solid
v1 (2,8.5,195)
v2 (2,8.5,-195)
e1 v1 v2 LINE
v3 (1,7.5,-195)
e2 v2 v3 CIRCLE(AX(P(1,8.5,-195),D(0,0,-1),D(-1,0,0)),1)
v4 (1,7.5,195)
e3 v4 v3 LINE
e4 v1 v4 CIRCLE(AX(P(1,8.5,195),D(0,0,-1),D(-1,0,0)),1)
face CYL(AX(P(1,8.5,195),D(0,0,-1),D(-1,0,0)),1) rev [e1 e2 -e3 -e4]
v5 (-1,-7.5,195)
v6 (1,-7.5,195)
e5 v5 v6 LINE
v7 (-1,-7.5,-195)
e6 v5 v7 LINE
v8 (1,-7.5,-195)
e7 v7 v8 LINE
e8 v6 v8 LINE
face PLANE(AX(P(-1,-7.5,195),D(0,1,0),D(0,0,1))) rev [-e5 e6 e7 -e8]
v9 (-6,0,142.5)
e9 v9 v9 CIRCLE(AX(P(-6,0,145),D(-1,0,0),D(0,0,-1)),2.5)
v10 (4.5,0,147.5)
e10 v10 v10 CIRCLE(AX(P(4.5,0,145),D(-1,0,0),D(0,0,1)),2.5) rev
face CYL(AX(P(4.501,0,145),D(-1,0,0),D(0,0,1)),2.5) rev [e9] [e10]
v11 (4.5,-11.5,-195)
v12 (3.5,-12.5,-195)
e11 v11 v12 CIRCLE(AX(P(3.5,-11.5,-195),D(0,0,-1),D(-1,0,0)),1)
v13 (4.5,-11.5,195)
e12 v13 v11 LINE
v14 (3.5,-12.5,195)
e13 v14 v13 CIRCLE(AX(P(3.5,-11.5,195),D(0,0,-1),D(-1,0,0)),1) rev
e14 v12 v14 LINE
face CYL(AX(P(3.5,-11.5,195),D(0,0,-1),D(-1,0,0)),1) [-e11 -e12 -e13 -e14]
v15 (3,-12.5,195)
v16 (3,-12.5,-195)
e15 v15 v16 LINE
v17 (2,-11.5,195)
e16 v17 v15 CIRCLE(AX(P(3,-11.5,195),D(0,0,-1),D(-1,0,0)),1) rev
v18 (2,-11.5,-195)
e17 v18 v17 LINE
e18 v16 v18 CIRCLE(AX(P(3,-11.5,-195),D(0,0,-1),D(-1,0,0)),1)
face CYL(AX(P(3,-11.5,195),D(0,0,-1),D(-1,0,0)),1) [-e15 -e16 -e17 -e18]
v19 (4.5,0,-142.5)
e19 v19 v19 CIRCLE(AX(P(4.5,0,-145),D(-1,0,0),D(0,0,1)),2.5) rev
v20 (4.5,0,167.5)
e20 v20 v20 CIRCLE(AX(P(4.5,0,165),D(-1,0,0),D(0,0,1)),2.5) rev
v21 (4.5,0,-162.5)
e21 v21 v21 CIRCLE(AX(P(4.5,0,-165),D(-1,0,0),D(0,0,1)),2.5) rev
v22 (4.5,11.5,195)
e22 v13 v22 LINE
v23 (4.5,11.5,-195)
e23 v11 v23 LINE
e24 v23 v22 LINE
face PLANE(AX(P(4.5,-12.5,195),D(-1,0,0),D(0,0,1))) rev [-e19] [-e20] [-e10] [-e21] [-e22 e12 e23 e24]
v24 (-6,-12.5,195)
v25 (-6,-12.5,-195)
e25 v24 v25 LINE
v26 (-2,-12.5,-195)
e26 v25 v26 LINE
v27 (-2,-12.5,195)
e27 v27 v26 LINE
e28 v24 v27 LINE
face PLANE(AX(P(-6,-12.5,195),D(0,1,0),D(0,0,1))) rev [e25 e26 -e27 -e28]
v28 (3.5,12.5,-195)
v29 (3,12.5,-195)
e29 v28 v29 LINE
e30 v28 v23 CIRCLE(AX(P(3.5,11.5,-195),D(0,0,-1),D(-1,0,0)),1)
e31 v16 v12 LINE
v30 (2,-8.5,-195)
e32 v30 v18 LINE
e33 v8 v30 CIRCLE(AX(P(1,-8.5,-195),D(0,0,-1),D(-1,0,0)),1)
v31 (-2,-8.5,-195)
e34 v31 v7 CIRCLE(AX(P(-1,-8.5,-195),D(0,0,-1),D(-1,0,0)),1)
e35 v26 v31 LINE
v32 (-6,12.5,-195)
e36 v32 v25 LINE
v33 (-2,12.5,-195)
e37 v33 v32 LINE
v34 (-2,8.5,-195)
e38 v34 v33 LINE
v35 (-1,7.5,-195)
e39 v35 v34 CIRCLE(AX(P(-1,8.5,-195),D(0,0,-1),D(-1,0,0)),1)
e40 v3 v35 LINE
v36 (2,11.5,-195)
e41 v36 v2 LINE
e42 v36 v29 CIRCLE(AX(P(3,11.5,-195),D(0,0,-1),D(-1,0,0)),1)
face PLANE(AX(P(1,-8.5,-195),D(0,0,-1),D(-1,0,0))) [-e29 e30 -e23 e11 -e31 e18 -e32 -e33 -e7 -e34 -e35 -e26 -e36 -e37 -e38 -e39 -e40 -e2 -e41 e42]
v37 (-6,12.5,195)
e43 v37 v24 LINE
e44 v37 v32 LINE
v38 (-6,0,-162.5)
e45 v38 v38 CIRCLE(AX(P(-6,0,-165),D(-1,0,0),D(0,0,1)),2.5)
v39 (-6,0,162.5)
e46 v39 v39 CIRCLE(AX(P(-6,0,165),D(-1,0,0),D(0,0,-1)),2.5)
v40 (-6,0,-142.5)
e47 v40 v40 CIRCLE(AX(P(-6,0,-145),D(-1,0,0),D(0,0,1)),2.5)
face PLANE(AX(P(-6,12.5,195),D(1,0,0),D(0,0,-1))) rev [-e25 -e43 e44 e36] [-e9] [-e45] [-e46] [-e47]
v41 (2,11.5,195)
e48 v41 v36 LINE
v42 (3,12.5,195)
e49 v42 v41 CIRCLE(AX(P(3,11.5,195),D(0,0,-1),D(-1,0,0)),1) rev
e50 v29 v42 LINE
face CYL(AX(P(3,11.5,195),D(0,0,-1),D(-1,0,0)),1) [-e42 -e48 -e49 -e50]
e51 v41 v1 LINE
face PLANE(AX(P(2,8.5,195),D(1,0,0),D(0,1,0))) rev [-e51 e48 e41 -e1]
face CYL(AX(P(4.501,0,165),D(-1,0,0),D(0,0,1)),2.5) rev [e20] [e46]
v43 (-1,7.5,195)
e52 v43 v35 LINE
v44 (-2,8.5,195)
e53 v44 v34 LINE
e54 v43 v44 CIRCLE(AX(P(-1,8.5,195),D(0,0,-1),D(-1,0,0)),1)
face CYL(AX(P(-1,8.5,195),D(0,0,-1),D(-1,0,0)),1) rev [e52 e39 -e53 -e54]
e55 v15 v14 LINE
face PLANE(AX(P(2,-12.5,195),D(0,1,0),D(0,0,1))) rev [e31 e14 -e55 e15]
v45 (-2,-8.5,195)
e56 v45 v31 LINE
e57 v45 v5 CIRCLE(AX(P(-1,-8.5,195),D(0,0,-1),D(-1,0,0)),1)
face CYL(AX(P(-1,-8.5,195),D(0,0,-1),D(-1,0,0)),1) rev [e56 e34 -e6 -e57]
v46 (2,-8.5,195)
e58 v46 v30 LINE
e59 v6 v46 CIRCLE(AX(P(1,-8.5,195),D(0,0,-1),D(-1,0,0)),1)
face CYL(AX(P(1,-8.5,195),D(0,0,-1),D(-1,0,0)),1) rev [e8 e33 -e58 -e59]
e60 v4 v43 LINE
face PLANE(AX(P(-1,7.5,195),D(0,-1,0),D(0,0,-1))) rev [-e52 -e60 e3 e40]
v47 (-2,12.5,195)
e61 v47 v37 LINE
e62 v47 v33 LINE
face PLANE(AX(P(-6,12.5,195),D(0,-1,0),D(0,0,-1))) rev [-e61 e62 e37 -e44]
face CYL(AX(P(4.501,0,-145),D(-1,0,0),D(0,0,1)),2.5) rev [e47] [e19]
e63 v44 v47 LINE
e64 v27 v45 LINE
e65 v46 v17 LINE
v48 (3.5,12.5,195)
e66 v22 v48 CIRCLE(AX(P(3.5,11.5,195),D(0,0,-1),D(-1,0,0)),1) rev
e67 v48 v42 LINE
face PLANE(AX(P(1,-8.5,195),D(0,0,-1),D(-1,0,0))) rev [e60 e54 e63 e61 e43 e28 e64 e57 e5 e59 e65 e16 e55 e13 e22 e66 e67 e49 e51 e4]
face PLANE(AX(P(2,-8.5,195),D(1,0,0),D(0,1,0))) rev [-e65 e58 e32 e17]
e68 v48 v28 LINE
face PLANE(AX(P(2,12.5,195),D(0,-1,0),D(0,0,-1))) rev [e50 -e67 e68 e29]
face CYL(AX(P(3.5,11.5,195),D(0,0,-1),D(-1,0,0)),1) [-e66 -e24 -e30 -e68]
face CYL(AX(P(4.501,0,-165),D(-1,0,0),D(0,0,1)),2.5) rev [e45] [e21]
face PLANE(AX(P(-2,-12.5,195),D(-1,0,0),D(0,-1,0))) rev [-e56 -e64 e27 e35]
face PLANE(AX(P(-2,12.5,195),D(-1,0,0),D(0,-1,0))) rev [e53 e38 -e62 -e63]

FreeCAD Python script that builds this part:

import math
import FreeCAD as App
import Part
import Sketcher

V = App.Vector
Q = App.Units.Quantity


def edges_at(feature, points):
    """Names of the edges that pass closest to the given points."""
    edges = feature.Shape.Edges
    near = lambda p: min(range(len(edges)), key=lambda i: edges[i].distToShape(Part.Vertex(*p))[0])
    return sorted({f"Edge{near(p) + 1}" for p in points})

doc = App.newDocument("Part")
body = doc.addObject("PartDesign::Body", "Body")

sketch1 = body.newObject("Sketcher::SketchObject", "Sketch")
sketch1.AttachmentSupport = (doc.getObject("XY_Plane"), [""])
sketch1.MapMode = "FlatFace"
sketch1.addGeometry(Part.LineSegment(V(-6, 12.5, 0), V(-6, -12.5, 0)), False)
sketch1.addGeometry(Part.LineSegment(V(-6, -12.5, 0), V(-2, -12.5, 0)), False)
sketch1.addGeometry(Part.LineSegment(V(-2, -12.5, 0), V(-2, -8.5, 0)), False)
sketch1.addGeometry(Part.ArcOfCircle(Part.Circle(V(-1, -8.5, 0), V(0, 0, 1), 1), math.radians(90), math.radians(180)), False)
sketch1.addGeometry(Part.LineSegment(V(-1, -7.5, 0), V(1, -7.5, 0)), False)
sketch1.addGeometry(Part.ArcOfCircle(Part.Circle(V(1, -8.5, 0), V(0, 0, 1), 1), math.radians(0), math.radians(90)), False)
sketch1.addGeometry(Part.LineSegment(V(2, -8.5, 0), V(2, -12.5, 0)), False)
sketch1.addGeometry(Part.LineSegment(V(2, -12.5, 0), V(4.5, -12.5, 0)), False)
sketch1.addGeometry(Part.LineSegment(V(4.5, -12.5, 0), V(4.5, 12.5, 0)), False)
sketch1.addGeometry(Part.LineSegment(V(4.5, 12.5, 0), V(2, 12.5, 0)), False)
sketch1.addGeometry(Part.LineSegment(V(2, 12.5, 0), V(2, 8.5, 0)), False)
sketch1.addGeometry(Part.ArcOfCircle(Part.Circle(V(1, 8.5, 0), V(0, 0, 1), 1), math.radians(-90), math.radians(0)), False)
sketch1.addGeometry(Part.LineSegment(V(1, 7.5, 0), V(-1, 7.5, 0)), False)
sketch1.addGeometry(Part.ArcOfCircle(Part.Circle(V(-1, 8.5, 0), V(0, 0, 1), 1), math.radians(-180), math.radians(-90)), False)
sketch1.addGeometry(Part.LineSegment(V(-2, 8.5, 0), V(-2, 12.5, 0)), False)
sketch1.addGeometry(Part.LineSegment(V(-2, 12.5, 0), V(-6, 12.5, 0)), False)
sketch1.addConstraint(Sketcher.Constraint("Coincident", 0, 2, 1, 1))
sketch1.addConstraint(Sketcher.Constraint("Coincident", 1, 2, 2, 1))
sketch1.addConstraint(Sketcher.Constraint("Tangent", 2, 2, 3, 2))
sketch1.addConstraint(Sketcher.Constraint("Tangent", 3, 1, 4, 1))
sketch1.addConstraint(Sketcher.Constraint("Tangent", 4, 2, 5, 2))
sketch1.addConstraint(Sketcher.Constraint("Tangent", 5, 1, 6, 1))
sketch1.addConstraint(Sketcher.Constraint("Coincident", 6, 2, 7, 1))
sketch1.addConstraint(Sketcher.Constraint("Coincident", 7, 2, 8, 1))
sketch1.addConstraint(Sketcher.Constraint("Coincident", 8, 2, 9, 1))
sketch1.addConstraint(Sketcher.Constraint("Coincident", 9, 2, 10, 1))
sketch1.addConstraint(Sketcher.Constraint("Tangent", 10, 2, 11, 2))
sketch1.addConstraint(Sketcher.Constraint("Tangent", 11, 1, 12, 1))
sketch1.addConstraint(Sketcher.Constraint("Tangent", 12, 2, 13, 2))
sketch1.addConstraint(Sketcher.Constraint("Tangent", 13, 1, 14, 1))
sketch1.addConstraint(Sketcher.Constraint("Coincident", 14, 2, 15, 1))
sketch1.addConstraint(Sketcher.Constraint("Coincident", 15, 2, 0, 1))
sketch1.addConstraint(Sketcher.Constraint("Vertical", 0))
sketch1.addConstraint(Sketcher.Constraint("Horizontal", 1))
sketch1.addConstraint(Sketcher.Constraint("Vertical", 2))
sketch1.addConstraint(Sketcher.Constraint("Horizontal", 4))
sketch1.addConstraint(Sketcher.Constraint("Vertical", 6))
sketch1.addConstraint(Sketcher.Constraint("Horizontal", 7))
sketch1.addConstraint(Sketcher.Constraint("Vertical", 8))
sketch1.addConstraint(Sketcher.Constraint("Horizontal", 9))
sketch1.addConstraint(Sketcher.Constraint("Vertical", 10))
sketch1.addConstraint(Sketcher.Constraint("Horizontal", 12))
sketch1.addConstraint(Sketcher.Constraint("Vertical", 14))
sketch1.addConstraint(Sketcher.Constraint("Horizontal", 15))
sketch1.addConstraint(Sketcher.Constraint("Equal", 3, 5))
sketch1.addConstraint(Sketcher.Constraint("Equal", 5, 11))
sketch1.addConstraint(Sketcher.Constraint("Equal", 11, 13))
sketch1.addConstraint(Sketcher.Constraint("Symmetric", 3, 3, 11, 3, -1, 1))
sketch1.addConstraint(Sketcher.Constraint("Symmetric", 6, 2, 14, 2, -1, 1))
sketch1.addConstraint(Sketcher.Constraint("Symmetric", 1, 2, 6, 2, -2))
sketch1.addConstraint(Sketcher.Constraint("Horizontal", 9, 2, 14, 2))
sketch1.addConstraint(Sketcher.Constraint("Equal", 15, 2))
sketch1.addConstraint(Sketcher.Constraint("Radius", 3, Q("1 mm")))
sketch1.addConstraint(Sketcher.Constraint("DistanceX", 1, 1, 1, 2, Q("4 mm")))
sketch1.addConstraint(Sketcher.Constraint("DistanceX", 4, 1, 4, 2, Q("2 mm")))
sketch1.addConstraint(Sketcher.Constraint("DistanceY", 0, 2, 0, 1, Q("25 mm")))
sketch1.addConstraint(Sketcher.Constraint("DistanceX", 7, 1, 7, 2, Q("2.5 mm")))
pad1 = body.newObject("PartDesign::Pad", "Pad")
pad1.Profile = sketch1
pad1.Length = 390
pad1.Midplane = True

sketch2 = body.newObject("Sketcher::SketchObject", "Sketch001")
sketch2.AttachmentSupport = (doc.getObject("YZ_Plane"), [""])
sketch2.MapMode = "FlatFace"
sketch2.AttachmentOffset = App.Placement(V(0, 0, -6), App.Rotation())
sketch2.addGeometry(Part.Circle(V(0, -165, 0), V(0, 0, 1), 2.5), False)
sketch2.addConstraint(Sketcher.Constraint("PointOnObject", 0, 3, -2))
sketch2.addConstraint(Sketcher.Constraint("Diameter", 0, Q("5 mm")))
sketch2.addConstraint(Sketcher.Constraint("DistanceY", 0, 3, -1, 1, Q("165 mm")))
pocket1 = body.newObject("PartDesign::Pocket", "Pocket")
pocket1.Profile = sketch2
pocket1.Type = "UpToFirst"
pocket1.Reversed = True

sketch3 = body.newObject("Sketcher::SketchObject", "Sketch002")
sketch3.AttachmentSupport = (doc.getObject("YZ_Plane"), [""])
sketch3.MapMode = "FlatFace"
sketch3.AttachmentOffset = App.Placement(V(0, 0, -6), App.Rotation())
sketch3.addGeometry(Part.Circle(V(0, -145, 0), V(0, 0, 1), 2.5), False)
sketch3.addConstraint(Sketcher.Constraint("PointOnObject", 0, 3, -2))
sketch3.addConstraint(Sketcher.Constraint("Diameter", 0, Q("5 mm")))
sketch3.addConstraint(Sketcher.Constraint("DistanceY", 0, 3, -1, 1, Q("145 mm")))
pocket2 = body.newObject("PartDesign::Pocket", "Pocket001")
pocket2.Profile = sketch3
pocket2.Type = "UpToFirst"
pocket2.Reversed = True

sketch4 = body.newObject("Sketcher::SketchObject", "Sketch003")
sketch4.AttachmentSupport = (doc.getObject("YZ_Plane"), [""])
sketch4.MapMode = "FlatFace"
sketch4.AttachmentOffset = App.Placement(V(0, 0, -6), App.Rotation())
sketch4.addGeometry(Part.Circle(V(0, 165, 0), V(0, 0, 1), 2.5), False)
sketch4.addConstraint(Sketcher.Constraint("PointOnObject", 0, 3, -2))
sketch4.addConstraint(Sketcher.Constraint("Diameter", 0, Q("5 mm")))
sketch4.addConstraint(Sketcher.Constraint("DistanceY", -1, 1, 0, 3, Q("165 mm")))
pocket3 = body.newObject("PartDesign::Pocket", "Pocket002")
pocket3.Profile = sketch4
pocket3.Type = "UpToFirst"
pocket3.Reversed = True

sketch5 = body.newObject("Sketcher::SketchObject", "Sketch004")
sketch5.AttachmentSupport = (doc.getObject("YZ_Plane"), [""])
sketch5.MapMode = "FlatFace"
sketch5.AttachmentOffset = App.Placement(V(0, 0, -6), App.Rotation())
sketch5.addGeometry(Part.Circle(V(0, 145, 0), V(0, 0, 1), 2.5), False)
sketch5.addConstraint(Sketcher.Constraint("PointOnObject", 0, 3, -2))
sketch5.addConstraint(Sketcher.Constraint("Diameter", 0, Q("5 mm")))
sketch5.addConstraint(Sketcher.Constraint("DistanceY", -1, 1, 0, 3, Q("145 mm")))
pocket4 = body.newObject("PartDesign::Pocket", "Pocket003")
pocket4.Profile = sketch5
pocket4.Type = "UpToFirst"
pocket4.Reversed = True
doc.recompute()

fillet = body.newObject("PartDesign::Fillet", "Fillet")
fillet.Base = (pocket4, edges_at(pocket4, [
    (2, 12.5, 0),
    (4.5, 12.5, 0),
    (4.5, -12.5, 0),
    (2, -12.5, 0),
]))
fillet.Radius = 1

doc.recompute()
